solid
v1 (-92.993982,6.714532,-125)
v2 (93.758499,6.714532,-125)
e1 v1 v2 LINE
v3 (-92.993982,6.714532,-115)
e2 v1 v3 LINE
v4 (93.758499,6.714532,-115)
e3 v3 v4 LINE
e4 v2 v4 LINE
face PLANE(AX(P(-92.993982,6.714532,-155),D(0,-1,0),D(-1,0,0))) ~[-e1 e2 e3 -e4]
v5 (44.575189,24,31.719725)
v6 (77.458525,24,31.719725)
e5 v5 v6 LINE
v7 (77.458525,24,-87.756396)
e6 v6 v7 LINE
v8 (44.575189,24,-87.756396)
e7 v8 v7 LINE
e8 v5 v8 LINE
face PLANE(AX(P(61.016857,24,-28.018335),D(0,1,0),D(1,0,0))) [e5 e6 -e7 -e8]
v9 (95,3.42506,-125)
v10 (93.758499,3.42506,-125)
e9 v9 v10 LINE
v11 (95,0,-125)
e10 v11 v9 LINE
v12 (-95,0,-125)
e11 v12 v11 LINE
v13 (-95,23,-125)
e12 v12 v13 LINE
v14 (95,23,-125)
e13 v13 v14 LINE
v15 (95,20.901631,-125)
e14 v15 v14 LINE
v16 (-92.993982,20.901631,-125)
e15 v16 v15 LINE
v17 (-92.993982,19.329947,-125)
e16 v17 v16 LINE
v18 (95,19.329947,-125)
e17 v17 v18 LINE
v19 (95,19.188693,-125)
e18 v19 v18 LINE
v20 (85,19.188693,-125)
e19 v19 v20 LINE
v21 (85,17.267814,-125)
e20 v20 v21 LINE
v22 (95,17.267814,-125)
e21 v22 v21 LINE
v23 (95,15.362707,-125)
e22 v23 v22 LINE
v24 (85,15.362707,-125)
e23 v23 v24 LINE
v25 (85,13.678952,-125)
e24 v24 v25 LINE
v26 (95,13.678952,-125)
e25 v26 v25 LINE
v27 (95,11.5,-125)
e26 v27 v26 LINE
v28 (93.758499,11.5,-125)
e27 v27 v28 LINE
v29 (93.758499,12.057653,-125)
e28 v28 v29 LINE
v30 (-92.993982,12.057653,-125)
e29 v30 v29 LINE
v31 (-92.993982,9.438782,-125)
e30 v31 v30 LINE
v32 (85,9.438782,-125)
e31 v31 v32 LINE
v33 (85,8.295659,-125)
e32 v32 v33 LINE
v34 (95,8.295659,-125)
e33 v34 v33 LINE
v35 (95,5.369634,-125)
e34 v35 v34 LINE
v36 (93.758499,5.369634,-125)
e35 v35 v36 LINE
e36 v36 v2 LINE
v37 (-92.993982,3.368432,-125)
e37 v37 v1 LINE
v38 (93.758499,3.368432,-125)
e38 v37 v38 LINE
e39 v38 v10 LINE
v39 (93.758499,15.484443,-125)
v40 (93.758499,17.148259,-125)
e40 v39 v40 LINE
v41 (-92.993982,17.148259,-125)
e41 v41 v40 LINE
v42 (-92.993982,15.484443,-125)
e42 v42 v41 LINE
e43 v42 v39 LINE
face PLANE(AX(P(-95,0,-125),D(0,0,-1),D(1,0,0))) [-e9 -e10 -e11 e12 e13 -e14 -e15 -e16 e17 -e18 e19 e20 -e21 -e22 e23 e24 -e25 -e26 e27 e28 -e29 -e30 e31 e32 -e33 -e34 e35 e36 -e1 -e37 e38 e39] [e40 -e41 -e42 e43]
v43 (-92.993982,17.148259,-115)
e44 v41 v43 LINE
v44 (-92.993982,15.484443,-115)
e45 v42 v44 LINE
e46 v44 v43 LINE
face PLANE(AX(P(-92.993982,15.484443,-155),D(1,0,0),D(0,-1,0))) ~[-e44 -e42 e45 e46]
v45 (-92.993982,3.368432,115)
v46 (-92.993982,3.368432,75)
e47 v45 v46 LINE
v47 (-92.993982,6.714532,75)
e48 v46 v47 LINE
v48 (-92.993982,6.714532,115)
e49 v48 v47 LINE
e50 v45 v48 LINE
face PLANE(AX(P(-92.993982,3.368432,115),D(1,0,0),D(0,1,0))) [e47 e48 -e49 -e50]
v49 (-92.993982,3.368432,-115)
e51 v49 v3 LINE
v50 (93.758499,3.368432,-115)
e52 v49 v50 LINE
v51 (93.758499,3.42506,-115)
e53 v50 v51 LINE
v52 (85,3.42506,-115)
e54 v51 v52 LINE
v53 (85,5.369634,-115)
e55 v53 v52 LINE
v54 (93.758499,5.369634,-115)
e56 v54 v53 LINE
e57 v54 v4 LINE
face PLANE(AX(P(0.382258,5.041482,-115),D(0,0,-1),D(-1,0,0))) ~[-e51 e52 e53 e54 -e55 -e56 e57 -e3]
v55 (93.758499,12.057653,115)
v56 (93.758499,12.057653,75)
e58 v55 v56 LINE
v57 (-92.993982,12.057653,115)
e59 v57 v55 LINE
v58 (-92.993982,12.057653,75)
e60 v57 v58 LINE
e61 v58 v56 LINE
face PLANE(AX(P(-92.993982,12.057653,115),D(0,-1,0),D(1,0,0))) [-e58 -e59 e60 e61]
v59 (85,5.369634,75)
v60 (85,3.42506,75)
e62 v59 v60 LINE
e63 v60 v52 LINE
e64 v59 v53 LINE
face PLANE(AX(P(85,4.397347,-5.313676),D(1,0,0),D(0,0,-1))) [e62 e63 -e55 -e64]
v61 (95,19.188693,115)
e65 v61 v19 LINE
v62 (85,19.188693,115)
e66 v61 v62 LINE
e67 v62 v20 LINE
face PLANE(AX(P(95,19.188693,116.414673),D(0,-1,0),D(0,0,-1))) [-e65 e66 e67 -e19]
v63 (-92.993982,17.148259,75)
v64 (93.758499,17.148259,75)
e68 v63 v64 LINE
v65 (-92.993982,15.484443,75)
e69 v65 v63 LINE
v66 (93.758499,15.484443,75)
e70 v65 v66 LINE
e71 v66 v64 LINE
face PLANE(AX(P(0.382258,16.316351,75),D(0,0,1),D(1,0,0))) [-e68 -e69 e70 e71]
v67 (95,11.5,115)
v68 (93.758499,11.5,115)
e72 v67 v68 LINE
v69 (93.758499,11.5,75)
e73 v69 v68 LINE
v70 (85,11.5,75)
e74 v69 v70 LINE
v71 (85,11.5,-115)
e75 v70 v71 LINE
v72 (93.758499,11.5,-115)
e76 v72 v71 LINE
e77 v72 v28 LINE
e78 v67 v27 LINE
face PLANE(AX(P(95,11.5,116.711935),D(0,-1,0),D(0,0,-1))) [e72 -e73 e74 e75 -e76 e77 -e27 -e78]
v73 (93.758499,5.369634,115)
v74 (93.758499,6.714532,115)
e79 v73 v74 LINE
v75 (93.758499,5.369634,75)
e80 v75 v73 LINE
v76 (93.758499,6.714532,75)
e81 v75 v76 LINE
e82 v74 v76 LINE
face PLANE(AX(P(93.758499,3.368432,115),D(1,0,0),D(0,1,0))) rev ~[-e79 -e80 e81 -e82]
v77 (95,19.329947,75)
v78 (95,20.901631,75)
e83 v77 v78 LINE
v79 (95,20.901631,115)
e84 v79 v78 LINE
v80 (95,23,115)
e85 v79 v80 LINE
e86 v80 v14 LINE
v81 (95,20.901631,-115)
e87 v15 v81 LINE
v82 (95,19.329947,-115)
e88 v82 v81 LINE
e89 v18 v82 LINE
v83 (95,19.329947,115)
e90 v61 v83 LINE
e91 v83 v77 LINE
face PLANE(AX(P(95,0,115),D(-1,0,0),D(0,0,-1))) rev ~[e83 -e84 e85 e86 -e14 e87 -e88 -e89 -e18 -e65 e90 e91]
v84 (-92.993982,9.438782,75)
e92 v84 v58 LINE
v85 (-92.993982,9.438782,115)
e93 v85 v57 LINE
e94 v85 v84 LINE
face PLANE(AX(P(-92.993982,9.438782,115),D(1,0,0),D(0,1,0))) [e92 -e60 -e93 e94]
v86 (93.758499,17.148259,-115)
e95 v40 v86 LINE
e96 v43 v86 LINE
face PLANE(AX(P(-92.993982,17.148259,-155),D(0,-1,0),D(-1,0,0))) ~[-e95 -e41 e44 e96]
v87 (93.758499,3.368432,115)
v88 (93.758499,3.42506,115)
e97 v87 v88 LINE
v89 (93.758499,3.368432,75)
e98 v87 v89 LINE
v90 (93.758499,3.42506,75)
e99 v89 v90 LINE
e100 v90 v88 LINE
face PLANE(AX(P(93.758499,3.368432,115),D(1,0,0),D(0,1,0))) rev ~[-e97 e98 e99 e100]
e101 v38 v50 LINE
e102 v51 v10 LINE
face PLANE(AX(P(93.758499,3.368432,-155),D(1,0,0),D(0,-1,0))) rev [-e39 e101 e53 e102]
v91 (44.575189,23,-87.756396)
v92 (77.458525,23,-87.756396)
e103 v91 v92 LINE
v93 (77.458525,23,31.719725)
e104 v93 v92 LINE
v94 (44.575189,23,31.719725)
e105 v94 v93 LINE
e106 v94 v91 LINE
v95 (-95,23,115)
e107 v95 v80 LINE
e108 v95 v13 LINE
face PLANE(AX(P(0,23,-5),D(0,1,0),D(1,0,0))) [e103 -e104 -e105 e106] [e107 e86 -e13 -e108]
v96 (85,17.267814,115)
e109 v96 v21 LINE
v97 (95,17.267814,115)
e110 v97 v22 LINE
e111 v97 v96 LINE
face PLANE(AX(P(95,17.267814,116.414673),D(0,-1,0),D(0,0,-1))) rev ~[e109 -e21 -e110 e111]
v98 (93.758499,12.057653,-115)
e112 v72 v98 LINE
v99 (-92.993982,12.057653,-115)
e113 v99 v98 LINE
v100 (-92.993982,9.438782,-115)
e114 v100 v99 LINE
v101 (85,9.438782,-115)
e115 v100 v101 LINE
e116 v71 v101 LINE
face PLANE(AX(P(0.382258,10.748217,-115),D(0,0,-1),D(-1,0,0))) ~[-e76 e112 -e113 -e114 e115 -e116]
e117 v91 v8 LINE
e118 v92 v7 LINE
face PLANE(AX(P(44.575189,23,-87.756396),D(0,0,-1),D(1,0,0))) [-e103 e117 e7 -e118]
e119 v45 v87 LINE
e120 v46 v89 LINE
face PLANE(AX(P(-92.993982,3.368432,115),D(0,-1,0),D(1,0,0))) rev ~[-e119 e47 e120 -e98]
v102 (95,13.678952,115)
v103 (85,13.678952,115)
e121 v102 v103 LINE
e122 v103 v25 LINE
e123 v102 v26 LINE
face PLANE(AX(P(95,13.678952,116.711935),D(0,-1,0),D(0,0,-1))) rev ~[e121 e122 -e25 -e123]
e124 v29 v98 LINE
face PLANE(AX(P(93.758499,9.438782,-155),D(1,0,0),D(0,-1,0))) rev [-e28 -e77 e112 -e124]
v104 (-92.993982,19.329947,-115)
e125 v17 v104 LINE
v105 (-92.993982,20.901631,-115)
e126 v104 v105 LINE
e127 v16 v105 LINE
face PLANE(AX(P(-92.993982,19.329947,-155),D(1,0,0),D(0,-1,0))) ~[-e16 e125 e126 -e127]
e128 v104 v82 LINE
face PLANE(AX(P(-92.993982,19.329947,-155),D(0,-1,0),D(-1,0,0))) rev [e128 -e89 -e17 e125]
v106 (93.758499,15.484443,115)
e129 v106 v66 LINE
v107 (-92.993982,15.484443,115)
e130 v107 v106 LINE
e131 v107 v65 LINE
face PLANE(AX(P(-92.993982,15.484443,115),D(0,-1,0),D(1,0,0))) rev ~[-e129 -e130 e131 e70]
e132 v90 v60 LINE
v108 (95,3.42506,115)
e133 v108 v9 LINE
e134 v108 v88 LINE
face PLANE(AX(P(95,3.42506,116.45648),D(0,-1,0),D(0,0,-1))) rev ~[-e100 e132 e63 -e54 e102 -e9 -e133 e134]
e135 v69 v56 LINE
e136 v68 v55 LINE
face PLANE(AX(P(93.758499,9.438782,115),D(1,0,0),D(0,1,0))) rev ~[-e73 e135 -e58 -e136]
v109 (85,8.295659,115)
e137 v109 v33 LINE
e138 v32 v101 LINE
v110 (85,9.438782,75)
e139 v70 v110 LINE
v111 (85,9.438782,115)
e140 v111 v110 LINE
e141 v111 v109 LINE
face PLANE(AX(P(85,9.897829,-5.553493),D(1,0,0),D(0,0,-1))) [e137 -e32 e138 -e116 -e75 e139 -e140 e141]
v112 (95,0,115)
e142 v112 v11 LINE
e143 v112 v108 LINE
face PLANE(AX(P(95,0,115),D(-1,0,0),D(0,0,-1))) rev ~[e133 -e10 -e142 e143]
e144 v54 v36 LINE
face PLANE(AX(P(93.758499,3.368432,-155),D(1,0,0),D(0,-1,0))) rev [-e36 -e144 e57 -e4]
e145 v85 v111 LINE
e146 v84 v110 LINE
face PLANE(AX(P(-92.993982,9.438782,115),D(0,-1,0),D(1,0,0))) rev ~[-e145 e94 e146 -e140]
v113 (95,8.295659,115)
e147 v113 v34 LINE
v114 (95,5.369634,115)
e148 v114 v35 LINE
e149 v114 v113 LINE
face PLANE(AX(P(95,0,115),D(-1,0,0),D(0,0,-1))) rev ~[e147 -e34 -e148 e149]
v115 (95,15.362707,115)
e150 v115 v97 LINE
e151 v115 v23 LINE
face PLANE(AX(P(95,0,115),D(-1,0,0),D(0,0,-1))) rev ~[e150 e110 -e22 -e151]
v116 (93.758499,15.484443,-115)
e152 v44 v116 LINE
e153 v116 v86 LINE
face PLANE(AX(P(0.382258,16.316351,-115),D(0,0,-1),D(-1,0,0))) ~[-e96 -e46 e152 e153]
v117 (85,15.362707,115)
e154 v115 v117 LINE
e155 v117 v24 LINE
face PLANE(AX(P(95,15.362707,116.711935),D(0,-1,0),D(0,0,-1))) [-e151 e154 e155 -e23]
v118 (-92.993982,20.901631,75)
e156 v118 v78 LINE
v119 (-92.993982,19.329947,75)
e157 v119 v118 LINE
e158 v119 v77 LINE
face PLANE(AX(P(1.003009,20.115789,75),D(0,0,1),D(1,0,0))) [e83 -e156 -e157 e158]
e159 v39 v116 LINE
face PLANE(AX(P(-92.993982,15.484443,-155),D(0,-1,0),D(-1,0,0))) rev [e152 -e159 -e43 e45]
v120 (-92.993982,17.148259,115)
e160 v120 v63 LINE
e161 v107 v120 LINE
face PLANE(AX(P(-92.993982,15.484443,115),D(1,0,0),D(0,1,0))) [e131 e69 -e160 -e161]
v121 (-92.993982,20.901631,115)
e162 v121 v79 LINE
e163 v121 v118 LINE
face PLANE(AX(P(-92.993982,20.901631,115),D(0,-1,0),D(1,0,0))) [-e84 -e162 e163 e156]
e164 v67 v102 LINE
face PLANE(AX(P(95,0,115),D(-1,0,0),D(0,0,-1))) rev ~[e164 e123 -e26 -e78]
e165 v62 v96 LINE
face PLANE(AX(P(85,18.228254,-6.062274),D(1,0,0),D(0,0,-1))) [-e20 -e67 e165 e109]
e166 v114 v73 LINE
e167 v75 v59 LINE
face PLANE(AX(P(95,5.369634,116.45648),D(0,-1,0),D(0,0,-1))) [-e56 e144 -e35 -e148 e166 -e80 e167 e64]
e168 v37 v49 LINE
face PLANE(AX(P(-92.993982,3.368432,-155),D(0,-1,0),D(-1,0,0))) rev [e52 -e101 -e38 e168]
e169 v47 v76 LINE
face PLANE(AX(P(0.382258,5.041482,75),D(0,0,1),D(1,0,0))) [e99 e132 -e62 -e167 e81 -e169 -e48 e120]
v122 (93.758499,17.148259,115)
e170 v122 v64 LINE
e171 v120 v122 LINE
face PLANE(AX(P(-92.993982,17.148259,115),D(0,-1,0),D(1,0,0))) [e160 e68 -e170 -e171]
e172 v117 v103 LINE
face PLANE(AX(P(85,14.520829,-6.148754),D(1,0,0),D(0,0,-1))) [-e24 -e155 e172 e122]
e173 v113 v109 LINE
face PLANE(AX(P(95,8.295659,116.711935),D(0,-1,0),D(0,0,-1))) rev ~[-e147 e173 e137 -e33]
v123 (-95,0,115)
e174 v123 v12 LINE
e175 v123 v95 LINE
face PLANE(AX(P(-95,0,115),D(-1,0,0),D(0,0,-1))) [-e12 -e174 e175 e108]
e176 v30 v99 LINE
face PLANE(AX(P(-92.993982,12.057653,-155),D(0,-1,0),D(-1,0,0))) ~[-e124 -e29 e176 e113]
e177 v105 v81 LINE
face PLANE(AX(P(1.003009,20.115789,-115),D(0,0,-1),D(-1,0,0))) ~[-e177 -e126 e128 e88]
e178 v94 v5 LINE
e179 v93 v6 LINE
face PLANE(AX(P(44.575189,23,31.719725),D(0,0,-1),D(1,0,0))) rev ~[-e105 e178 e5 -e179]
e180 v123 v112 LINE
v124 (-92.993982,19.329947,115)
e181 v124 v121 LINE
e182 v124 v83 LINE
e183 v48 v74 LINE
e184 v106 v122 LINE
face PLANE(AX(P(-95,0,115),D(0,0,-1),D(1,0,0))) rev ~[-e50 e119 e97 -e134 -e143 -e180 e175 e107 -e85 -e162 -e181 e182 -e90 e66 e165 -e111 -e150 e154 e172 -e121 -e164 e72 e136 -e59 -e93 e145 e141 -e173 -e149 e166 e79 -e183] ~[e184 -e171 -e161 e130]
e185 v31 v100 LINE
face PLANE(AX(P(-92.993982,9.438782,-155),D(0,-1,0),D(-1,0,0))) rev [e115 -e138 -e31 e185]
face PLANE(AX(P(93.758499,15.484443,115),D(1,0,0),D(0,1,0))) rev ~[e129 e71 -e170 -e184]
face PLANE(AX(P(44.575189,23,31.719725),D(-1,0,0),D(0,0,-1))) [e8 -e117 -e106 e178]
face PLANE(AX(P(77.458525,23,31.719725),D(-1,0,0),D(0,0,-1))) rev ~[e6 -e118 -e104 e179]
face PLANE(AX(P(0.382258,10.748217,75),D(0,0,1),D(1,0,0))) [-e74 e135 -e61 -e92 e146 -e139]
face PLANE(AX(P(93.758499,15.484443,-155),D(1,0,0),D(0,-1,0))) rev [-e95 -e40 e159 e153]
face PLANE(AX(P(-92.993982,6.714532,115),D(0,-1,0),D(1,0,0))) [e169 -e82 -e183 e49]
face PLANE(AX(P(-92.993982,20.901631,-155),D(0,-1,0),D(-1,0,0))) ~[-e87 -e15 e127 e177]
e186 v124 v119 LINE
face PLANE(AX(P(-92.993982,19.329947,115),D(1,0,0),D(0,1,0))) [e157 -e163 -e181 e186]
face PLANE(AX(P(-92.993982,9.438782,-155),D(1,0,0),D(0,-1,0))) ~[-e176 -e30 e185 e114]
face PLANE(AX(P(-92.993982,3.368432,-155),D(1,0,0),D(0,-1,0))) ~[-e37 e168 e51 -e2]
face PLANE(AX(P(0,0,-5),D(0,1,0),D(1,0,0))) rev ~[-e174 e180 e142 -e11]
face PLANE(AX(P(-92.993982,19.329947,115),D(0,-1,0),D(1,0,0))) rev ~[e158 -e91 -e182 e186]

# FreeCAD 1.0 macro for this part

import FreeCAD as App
import Part
import Sketcher

V = App.Vector


def add_polygon(sketch, points):
    """Adds a closed chain of lines whose ends are joined by coincident constraints."""
    first, n = sketch.GeometryCount, len(points)
    for a, b in zip(points, points[1:] + points[:1]):
        sketch.addGeometry(Part.LineSegment(App.Vector(*a, 0), App.Vector(*b, 0)), False)
    for i in range(n):
        sketch.addConstraint(Sketcher.Constraint("Coincident", first + i, 2, first + (i + 1) % n, 1))

doc = App.newDocument("Part")
params = doc.addObject("Spreadsheet::Sheet", "Params")
for row, (alias, value) in enumerate([
    ("sketch1_width", "190 mm"),
    ("sketch1_height", "240 mm"),
    ("pad1_length", "23 mm"),
    ("pocket1_length", "10 mm"),
    ("pocket2_length", "40 mm"),
    ("pad2_length", "1 mm"),
], start=1):
    params.set(f"A{row}", alias)
    params.set(f"B{row}", "=" + value)
    params.setAlias(f"B{row}", alias)

body = doc.addObject("PartDesign::Body", "Body")

# Sketch on XZ plane
sketch1 = body.newObject("Sketcher::SketchObject", "Sketch")
sketch1.AttachmentSupport = (doc.getObject("XZ_Plane"), [""])
sketch1.MapMode = "FlatFace"
add_polygon(sketch1, [(-95, -125), (-95, 115), (95, 115), (95, -125)])  # lines 0-3
sketch1.addConstraint(Sketcher.Constraint("Vertical", 0))
sketch1.addConstraint(Sketcher.Constraint("Horizontal", 1))
sketch1.addConstraint(Sketcher.Constraint("Vertical", 2))
sketch1.addConstraint(Sketcher.Constraint("Horizontal", 3))
sketch1.addConstraint(Sketcher.Constraint("DistanceX", 1, 1, 1, 2, 190.0))
sketch1.addConstraint(Sketcher.Constraint("DistanceY", 0, 1, 0, 2, 240.0))
sketch1.addConstraint(Sketcher.Constraint("DistanceX", 0, 2, -1, 1, 95.0))
sketch1.addConstraint(Sketcher.Constraint("DistanceY", -1, 1, 0, 2, 115.0))
sketch1.setExpression("Constraints[8]", "Params.sketch1_width")
sketch1.setExpression("Constraints[9]", "Params.sketch1_height")
pad1 = body.newObject("PartDesign::Pad", "Pad")
pad1.Profile = sketch1
pad1.setExpression("Length", "Params.pad1_length")
pad1.Reversed = True

# Sketch on YZ plane
sketch2 = body.newObject("Sketcher::SketchObject", "Sketch001")
sketch2.AttachmentSupport = (doc.getObject("YZ_Plane"), [""])
sketch2.MapMode = "FlatFace"
sketch2.AttachmentOffset = App.Placement(V(0, 0, 95), App.Rotation())
add_polygon(sketch2, [(19.2, 116.4), (17.3, 116.4), (17.3, -128.5), (19.2, -128.5)])  # lines 0-3
add_polygon(sketch2, [(15.4, 116.7), (13.7, 116.7), (13.7, -129), (15.4, -129)])  # lines 4-7
add_polygon(sketch2, [(11.5, 116.7), (8.3, 116.7), (8.3, -127.8), (11.5, -127.8)])  # lines 8-11
add_polygon(sketch2, [(5.4, 116.5), (3.4, 116.5), (3.4, -127.1), (5.4, -127.1)])  # lines 12-15
sketch2.addConstraint(Sketcher.Constraint("Horizontal", 0))
sketch2.addConstraint(Sketcher.Constraint("Vertical", 1))
sketch2.addConstraint(Sketcher.Constraint("Horizontal", 2))
sketch2.addConstraint(Sketcher.Constraint("Vertical", 3))
sketch2.addConstraint(Sketcher.Constraint("Horizontal", 4))
sketch2.addConstraint(Sketcher.Constraint("Vertical", 5))
sketch2.addConstraint(Sketcher.Constraint("Horizontal", 6))
sketch2.addConstraint(Sketcher.Constraint("Vertical", 7))
sketch2.addConstraint(Sketcher.Constraint("Horizontal", 8))
sketch2.addConstraint(Sketcher.Constraint("Vertical", 9))
sketch2.addConstraint(Sketcher.Constraint("Horizontal", 10))
sketch2.addConstraint(Sketcher.Constraint("Vertical", 11))
sketch2.addConstraint(Sketcher.Constraint("Horizontal", 12))
sketch2.addConstraint(Sketcher.Constraint("Vertical", 13))
sketch2.addConstraint(Sketcher.Constraint("Horizontal", 14))
sketch2.addConstraint(Sketcher.Constraint("Vertical", 15))
sketch2.addConstraint(Sketcher.Constraint("Horizontal", 7, 2, 8, 2))
sketch2.addConstraint(Sketcher.Constraint("DistanceX", -1, 1, 10, 2, 11.5))
sketch2.addConstraint(Sketcher.Constraint("DistanceX", 0, 2, 0, 1, 1.920878))
sketch2.addConstraint(Sketcher.Constraint("DistanceX", 8, 2, 8, 1, 3.204341))
sketch2.addConstraint(Sketcher.Constraint("DistanceY", 1, 2, 9, 2, 0.720301))
sketch2.addConstraint(Sketcher.Constraint("DistanceX", 12, 2, 8, 2, 4.870599))
sketch2.addConstraint(Sketcher.Constraint("DistanceX", 4, 2, 4, 1, 1.683755))
sketch2.addConstraint(Sketcher.Constraint("DistanceX", 12, 2, 12, 1, 1.944574))
sketch2.addConstraint(Sketcher.Constraint("DistanceY", 1, 2, 1, 1, 244.953895))
sketch2.addConstraint(Sketcher.Constraint("DistanceY", 5, 2, 5, 1, 245.721378))
sketch2.addConstraint(Sketcher.Constraint("DistanceY", 9, 2, 9, 1, 244.530856))
sketch2.addConstraint(Sketcher.Constraint("DistanceY", 13, 2, 13, 1, 243.540312))
sketch2.addConstraint(Sketcher.Constraint("DistanceY", 1, 2, -1, 1, 128.539221))
sketch2.addConstraint(Sketcher.Constraint("DistanceY", -1, 1, 12, 2, 116.45648))
sketch2.addConstraint(Sketcher.Constraint("DistanceX", 4, 2, 3, 2, 5.509741))
sketch2.addConstraint(Sketcher.Constraint("DistanceX", 14, 2, 5, 2, 8.309318))
pocket1 = body.newObject("PartDesign::Pocket", "Pocket")
pocket1.Profile = sketch2
pocket1.setExpression("Length", "Params.pocket1_length")

# Sketch on XY plane
sketch3 = body.newObject("Sketcher::SketchObject", "Sketch002")
sketch3.AttachmentSupport = (doc.getObject("XY_Plane"), [""])
sketch3.MapMode = "FlatFace"
sketch3.AttachmentOffset = App.Placement(V(0, 0, 115), App.Rotation())
add_polygon(sketch3, [(-93, 20.9), (-93, 19.3), (95, 19.3), (95, 20.9)])  # lines 0-3
add_polygon(sketch3, [(-93, 17.1), (-93, 15.5), (93.8, 15.5), (93.8, 17.1)])  # lines 4-7
add_polygon(sketch3, [(-93, 12.1), (-93, 9.4), (93.8, 9.4), (93.8, 12.1)])  # lines 8-11
add_polygon(sketch3, [(-93, 6.7), (-93, 3.4), (93.8, 3.4), (93.8, 6.7)])  # lines 12-15
sketch3.addConstraint(Sketcher.Constraint("Vertical", 0))
sketch3.addConstraint(Sketcher.Constraint("Horizontal", 1))
sketch3.addConstraint(Sketcher.Constraint("Vertical", 2))
sketch3.addConstraint(Sketcher.Constraint("Horizontal", 3))
sketch3.addConstraint(Sketcher.Constraint("Vertical", 4))
sketch3.addConstraint(Sketcher.Constraint("Horizontal", 5))
sketch3.addConstraint(Sketcher.Constraint("Vertical", 6))
sketch3.addConstraint(Sketcher.Constraint("Horizontal", 7))
sketch3.addConstraint(Sketcher.Constraint("Vertical", 8))
sketch3.addConstraint(Sketcher.Constraint("Horizontal", 9))
sketch3.addConstraint(Sketcher.Constraint("Vertical", 10))
sketch3.addConstraint(Sketcher.Constraint("Horizontal", 11))
sketch3.addConstraint(Sketcher.Constraint("Vertical", 12))
sketch3.addConstraint(Sketcher.Constraint("Horizontal", 13))
sketch3.addConstraint(Sketcher.Constraint("Vertical", 14))
sketch3.addConstraint(Sketcher.Constraint("Horizontal", 15))
sketch3.addConstraint(Sketcher.Constraint("Vertical", 3, 2, 4, 2))
sketch3.addConstraint(Sketcher.Constraint("Vertical", 7, 2, 8, 2))
sketch3.addConstraint(Sketcher.Constraint("Vertical", 6, 2, 9, 2))
sketch3.addConstraint(Sketcher.Constraint("Vertical", 11, 2, 12, 2))
sketch3.addConstraint(Sketcher.Constraint("Vertical", 10, 2, 13, 2))
sketch3.addConstraint(Sketcher.Constraint("DistanceX", -1, 1, 1, 2, 95.0))
sketch3.addConstraint(Sketcher.Constraint("DistanceY", 12, 2, 12, 1, 3.3461))
sketch3.addConstraint(Sketcher.Constraint("DistanceX", 5, 1, 5, 2, 186.752481))
sketch3.addConstraint(Sketcher.Constraint("DistanceY", 8, 2, 8, 1, 2.618871))
sketch3.addConstraint(Sketcher.Constraint("DistanceX", -1, 1, 5, 2, 93.758499))
sketch3.addConstraint(Sketcher.Constraint("DistanceY", 0, 2, 0, 1, 1.571683))
sketch3.addConstraint(Sketcher.Constraint("DistanceY", 4, 2, 4, 1, 1.663816))
sketch3.addConstraint(Sketcher.Constraint("DistanceY", -1, 1, 2, 2, 20.901631))
sketch3.addConstraint(Sketcher.Constraint("DistanceY", -1, 1, 6, 2, 17.148259))
sketch3.addConstraint(Sketcher.Constraint("DistanceY", -1, 1, 8, 2, 9.438782))
sketch3.addConstraint(Sketcher.Constraint("DistanceY", -1, 1, 12, 2, 3.368432))
pocket2 = body.newObject("PartDesign::Pocket", "Pocket001")
pocket2.Profile = sketch3
pocket2.setExpression("Length", "Params.pocket2_length")
doc.recompute()

datumplane = body.newObject("PartDesign::Plane", "DatumPlane")
datumplane.AttachmentSupport = (doc.getObject("XY_Plane"), [""])
datumplane.MapMode = "FlatFace"
datumplane.AttachmentOffset = App.Placement(V(0, 0, -20), App.Rotation())
mirrored = body.newObject("PartDesign::Mirrored", "Mirrored")
mirrored.Originals = [pocket2]
mirrored.MirrorPlane = (datumplane, [""])
body.Tip = mirrored

# Sketch on XZ plane
sketch4 = body.newObject("Sketcher::SketchObject", "Sketch003")
sketch4.AttachmentSupport = (doc.getObject("XZ_Plane"), [""])
sketch4.MapMode = "FlatFace"
sketch4.AttachmentOffset = App.Placement(V(0, 0, -23), App.Rotation())
add_polygon(sketch4, [(45, -88), (45, 32), (77, 32), (77, -88)])  # lines 0-3
sketch4.addConstraint(Sketcher.Constraint("Vertical", 0))
sketch4.addConstraint(Sketcher.Constraint("Horizontal", 1))
sketch4.addConstraint(Sketcher.Constraint("Vertical", 2))
sketch4.addConstraint(Sketcher.Constraint("Horizontal", 3))
sketch4.addConstraint(Sketcher.Constraint("DistanceY", 0, 1, 0, 2, 119.476121))
sketch4.addConstraint(Sketcher.Constraint("DistanceX", 1, 1, 1, 2, 32.883336))
sketch4.addConstraint(Sketcher.Constraint("DistanceX", -1, 1, 0, 2, 44.575189))
sketch4.addConstraint(Sketcher.Constraint("DistanceY", -1, 1, 0, 2, 31.719725))
pad2 = body.newObject("PartDesign::Pad", "Pad001")
pad2.Profile = sketch4
pad2.setExpression("Length", "Params.pad2_length")
pad2.Reversed = True

doc.recompute()
